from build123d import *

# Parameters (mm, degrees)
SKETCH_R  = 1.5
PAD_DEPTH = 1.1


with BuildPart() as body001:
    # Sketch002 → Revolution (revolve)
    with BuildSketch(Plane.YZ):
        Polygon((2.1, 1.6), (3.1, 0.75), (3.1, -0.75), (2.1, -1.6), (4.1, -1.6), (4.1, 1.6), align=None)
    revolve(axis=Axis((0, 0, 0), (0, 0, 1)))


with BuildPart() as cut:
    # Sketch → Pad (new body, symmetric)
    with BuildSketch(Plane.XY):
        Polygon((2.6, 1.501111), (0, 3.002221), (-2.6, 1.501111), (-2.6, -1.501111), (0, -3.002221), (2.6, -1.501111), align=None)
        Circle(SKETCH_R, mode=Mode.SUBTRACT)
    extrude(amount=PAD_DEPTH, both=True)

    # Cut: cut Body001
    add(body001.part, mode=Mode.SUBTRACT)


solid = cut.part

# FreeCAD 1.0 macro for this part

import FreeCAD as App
import Part
import Sketcher
from FreeCAD import Vector
Q = App.Units.Quantity

doc = App.newDocument("Part")
body = doc.addObject("PartDesign::Body", "Body")

sketch1 = body.newObject("Sketcher::SketchObject", "Sketch")
sketch1.AttachmentSupport = (doc.getObject("YZ_Plane"), [""])
sketch1.MapMode = "FlatFace"
sketch1.addGeometry([
    Part.LineSegment(Vector(2.1, 1.6, 0), Vector(3.1, 0.75, 0)),
    Part.LineSegment(Vector(3.1, 0.75, 0), Vector(3.1, -0.75, 0)),
    Part.LineSegment(Vector(3.1, -0.75, 0), Vector(2.1, -1.6, 0)),
    Part.LineSegment(Vector(2.1, -1.6, 0), Vector(4.1, -1.6, 0)),
    Part.LineSegment(Vector(4.1, -1.6, 0), Vector(4.1, 1.6, 0)),
    Part.LineSegment(Vector(4.1, 1.6, 0), Vector(2.1, 1.6, 0)),
], False)
sketch1.addConstraint([
    Sketcher.Constraint("Coincident", 0, 2, 1, 1),
    Sketcher.Constraint("Coincident", 1, 2, 2, 1),
    Sketcher.Constraint("Coincident", 2, 2, 3, 1),
    Sketcher.Constraint("Coincident", 3, 2, 4, 1),
    Sketcher.Constraint("Coincident", 4, 2, 5, 1),
    Sketcher.Constraint("Coincident", 5, 2, 0, 1),
    Sketcher.Constraint("Vertical", 1),
    Sketcher.Constraint("Horizontal", 3),
    Sketcher.Constraint("Vertical", 4),
    Sketcher.Constraint("Horizontal", 5),
    Sketcher.Constraint("Symmetric", 2, 2, 5, 2, -1),
    Sketcher.Constraint("Equal", 0, 2),
    Sketcher.Constraint("DistanceX", 3, 1, 3, 2, Q("2 mm")),
    Sketcher.Constraint("DistanceY", 1, 2, 1, 1, Q("1.5 mm")),
    Sketcher.Constraint("DistanceY", 4, 1, 4, 2, Q("3.2 mm")),
    Sketcher.Constraint("DistanceX", 2, 2, 1, 2, Q("1 mm")),
    Sketcher.Constraint("DistanceX", -1, 1, 0, 2, Q("3.1 mm")),
])
revolution = body.newObject("PartDesign::Revolution", "Revolution")
revolution.Profile = sketch1
revolution.ReferenceAxis = (sketch1, ["V_Axis"])
revolution.Angle = 360
body2 = doc.addObject("PartDesign::Body", "Body001")

sketch2 = body2.newObject("Sketcher::SketchObject", "Sketch001")
sketch2.AttachmentSupport = (doc.getObject("XY_Plane001"), [""])
sketch2.MapMode = "FlatFace"
sketch2.addGeometry([
    Part.LineSegment(Vector(2.6, 1.501111, 0), Vector(0, 3.002221, 0)),
    Part.LineSegment(Vector(0, 3.002221, 0), Vector(-2.6, 1.501111, 0)),
    Part.LineSegment(Vector(-2.6, 1.501111, 0), Vector(-2.6, -1.501111, 0)),
    Part.LineSegment(Vector(-2.6, -1.501111, 0), Vector(0, -3.002221, 0)),
    Part.LineSegment(Vector(0, -3.002221, 0), Vector(2.6, -1.501111, 0)),
    Part.LineSegment(Vector(2.6, -1.501111, 0), Vector(2.6, 1.501111, 0)),
    Part.Circle(Vector(0, 0, 0), Vector(0, 0, 1), 1.5),
], False)
sketch2.addConstraint([
    Sketcher.Constraint("Coincident", 0, 2, 1, 1),
    Sketcher.Constraint("Coincident", 1, 2, 2, 1),
    Sketcher.Constraint("Coincident", 2, 2, 3, 1),
    Sketcher.Constraint("Coincident", 3, 2, 4, 1),
    Sketcher.Constraint("Coincident", 4, 2, 5, 1),
    Sketcher.Constraint("Coincident", 5, 2, 0, 1),
    Sketcher.Constraint("Vertical", 2),
    Sketcher.Constraint("Vertical", 5),
    Sketcher.Constraint("Coincident", 6, 3, -1, 1),
    Sketcher.Constraint("Symmetric", 0, 2, 3, 2, -1, 1),
    Sketcher.Constraint("Symmetric", 1, 2, 4, 2, -1, 1),
    Sketcher.Constraint("PointOnObject", 0, 2, -2),
    Sketcher.Constraint("Parallel", 0, 3),
    Sketcher.Constraint("Horizontal", 2, 2, 4, 2),
    Sketcher.Constraint("Diameter", 6, Q("3 mm")),
    Sketcher.Constraint("Angle", 0, Q("150.000012 deg")),
    Sketcher.Constraint("DistanceX", 1, 2, -1, 1, Q("2.6 mm")),
    Sketcher.Constraint("DistanceY", 2, 2, 2, 1, Q("3.002222 mm")),
])
pad1 = body2.newObject("PartDesign::Pad", "Pad")
pad1.Profile = sketch2
pad1.Length = 2.2
pad1.Midplane = True
doc.recompute()

boolean = body2.newObject("PartDesign::Boolean", "Boolean")
boolean.Type = "Cut"
boolean.addObjects([body])

doc.recompute()
